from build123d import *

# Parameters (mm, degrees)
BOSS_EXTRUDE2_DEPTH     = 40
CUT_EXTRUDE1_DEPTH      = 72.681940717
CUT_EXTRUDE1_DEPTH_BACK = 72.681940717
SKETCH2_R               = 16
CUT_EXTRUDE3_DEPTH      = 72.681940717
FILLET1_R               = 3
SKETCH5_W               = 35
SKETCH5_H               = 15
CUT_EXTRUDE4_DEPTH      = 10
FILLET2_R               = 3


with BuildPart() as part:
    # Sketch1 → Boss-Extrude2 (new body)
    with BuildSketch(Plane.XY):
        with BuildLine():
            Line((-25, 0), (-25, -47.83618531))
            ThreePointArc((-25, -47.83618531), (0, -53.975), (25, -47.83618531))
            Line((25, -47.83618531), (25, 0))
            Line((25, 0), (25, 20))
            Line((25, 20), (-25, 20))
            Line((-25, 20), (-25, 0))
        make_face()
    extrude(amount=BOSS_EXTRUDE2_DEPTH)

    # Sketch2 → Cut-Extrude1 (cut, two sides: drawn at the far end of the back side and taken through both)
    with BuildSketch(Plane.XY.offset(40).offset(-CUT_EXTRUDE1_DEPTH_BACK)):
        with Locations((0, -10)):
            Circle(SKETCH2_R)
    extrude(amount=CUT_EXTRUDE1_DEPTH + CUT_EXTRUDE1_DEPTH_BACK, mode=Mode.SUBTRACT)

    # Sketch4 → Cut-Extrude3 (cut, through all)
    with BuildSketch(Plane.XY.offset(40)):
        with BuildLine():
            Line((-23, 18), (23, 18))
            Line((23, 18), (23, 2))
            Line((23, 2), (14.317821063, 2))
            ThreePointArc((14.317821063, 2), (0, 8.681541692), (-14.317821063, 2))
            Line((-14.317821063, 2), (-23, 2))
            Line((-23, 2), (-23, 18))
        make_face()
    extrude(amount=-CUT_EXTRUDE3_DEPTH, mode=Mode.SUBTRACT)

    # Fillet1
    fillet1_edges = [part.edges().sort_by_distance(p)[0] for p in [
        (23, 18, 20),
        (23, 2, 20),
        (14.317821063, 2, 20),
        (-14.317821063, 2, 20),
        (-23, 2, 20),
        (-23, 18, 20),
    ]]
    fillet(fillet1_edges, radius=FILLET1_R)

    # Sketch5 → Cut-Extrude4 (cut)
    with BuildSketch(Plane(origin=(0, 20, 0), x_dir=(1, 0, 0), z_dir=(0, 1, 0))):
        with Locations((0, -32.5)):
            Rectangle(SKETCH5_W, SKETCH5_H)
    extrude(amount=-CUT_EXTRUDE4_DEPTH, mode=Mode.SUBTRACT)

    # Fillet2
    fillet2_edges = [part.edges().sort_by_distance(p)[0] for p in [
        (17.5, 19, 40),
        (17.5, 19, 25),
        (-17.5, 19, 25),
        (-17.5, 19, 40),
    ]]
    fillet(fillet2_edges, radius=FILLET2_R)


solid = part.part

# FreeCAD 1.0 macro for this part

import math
import FreeCAD as App
import Part
import Sketcher
from FreeCAD import Vector
Q = App.Units.Quantity


def edges_at(feature, points):
    """Names of the edges that pass closest to the given points."""
    edges = feature.Shape.Edges
    near = lambda p: min(range(len(edges)), key=lambda i: edges[i].distToShape(Part.Vertex(*p))[0])
    return sorted({f"Edge{near(p) + 1}" for p in points})

doc = App.newDocument("Part")
body = doc.addObject("PartDesign::Body", "Body")

sketch1 = body.newObject("Sketcher::SketchObject", "Sketch")
sketch1.AttachmentSupport = (doc.getObject("XY_Plane"), [""])
sketch1.MapMode = "FlatFace"
sketch1.addGeometry([
    Part.ArcOfCircle(Part.Circle(Vector(0, 0, 0), Vector(0, 0, 1), 53.975), math.radians(-117.59233), math.radians(-62.40767)),
    Part.LineSegment(Vector(25, -47.836185, 0), Vector(25, 20, 0)),
    Part.LineSegment(Vector(25, 20, 0), Vector(-25, 20, 0)),
    Part.LineSegment(Vector(-25, 20, 0), Vector(-25, -47.836185, 0)),
], False)
sketch1.addConstraint([
    Sketcher.Constraint("Coincident", 0, 2, 1, 1),
    Sketcher.Constraint("Coincident", 1, 2, 2, 1),
    Sketcher.Constraint("Coincident", 2, 2, 3, 1),
    Sketcher.Constraint("Coincident", 3, 2, 0, 1),
    Sketcher.Constraint("Vertical", 1),
    Sketcher.Constraint("Horizontal", 2),
    Sketcher.Constraint("Vertical", 3),
    Sketcher.Constraint("Coincident", 0, 3, -1, 1),
    Sketcher.Constraint("Horizontal", 0, 2, 3, 2),
    Sketcher.Constraint("DistanceX", 2, 2, 2, 1, Q("50 mm")),
    Sketcher.Constraint("DistanceY", -1, 1, 1, 2, Q("20 mm")),
    Sketcher.Constraint("Radius", 0, Q("53.975 mm")),
])
pad1 = body.newObject("PartDesign::Pad", "Pad")
pad1.Profile = sketch1
pad1.Length = 40

sketch2 = body.newObject("Sketcher::SketchObject", "Sketch001")
sketch2.AttachmentSupport = (doc.getObject("XY_Plane"), [""])
sketch2.MapMode = "FlatFace"
sketch2.AttachmentOffset = App.Placement(Vector(0, 0, 40), App.Rotation())
sketch2.addGeometry(Part.Circle(Vector(0, -10, 0), Vector(0, 0, 1), 16), False)
sketch2.addConstraint([
    Sketcher.Constraint("PointOnObject", 0, 3, -2),
    Sketcher.Constraint("Diameter", 0, Q("32 mm")),
    Sketcher.Constraint("DistanceY", 0, 3, -1, 1, Q("10 mm")),
])
pocket1 = body.newObject("PartDesign::Pocket", "Pocket")
pocket1.Profile = sketch2
pocket1.Type = "ThroughAll"
pocket1.Midplane = True

sketch3 = body.newObject("Sketcher::SketchObject", "Sketch002")
sketch3.AttachmentSupport = (doc.getObject("XY_Plane"), [""])
sketch3.MapMode = "FlatFace"
sketch3.AttachmentOffset = App.Placement(Vector(0, 0, 40), App.Rotation())
sketch3.addGeometry([
    Part.LineSegment(Vector(23, 18, 0), Vector(-23, 18, 0)),
    Part.LineSegment(Vector(-23, 18, 0), Vector(-23, 2, 0)),
    Part.LineSegment(Vector(-23, 2, 0), Vector(-14.317821, 2, 0)),
    Part.ArcOfCircle(Part.Circle(Vector(0, -10, 0), Vector(0, 0, 1), 18.681542), math.radians(39.966924), math.radians(140.033076)),
    Part.LineSegment(Vector(14.317821, 2, 0), Vector(23, 2, 0)),
    Part.LineSegment(Vector(23, 2, 0), Vector(23, 18, 0)),
], False)
sketch3.addConstraint([
    Sketcher.Constraint("Coincident", 0, 2, 1, 1),
    Sketcher.Constraint("Coincident", 1, 2, 2, 1),
    Sketcher.Constraint("Coincident", 2, 2, 3, 2),
    Sketcher.Constraint("Coincident", 3, 1, 4, 1),
    Sketcher.Constraint("Coincident", 4, 2, 5, 1),
    Sketcher.Constraint("Coincident", 5, 2, 0, 1),
    Sketcher.Constraint("Horizontal", 0),
    Sketcher.Constraint("Vertical", 1),
    Sketcher.Constraint("Horizontal", 2),
    Sketcher.Constraint("Horizontal", 4),
    Sketcher.Constraint("Vertical", 5),
    Sketcher.Constraint("Symmetric", 2, 2, 3, 1, -2),
    Sketcher.Constraint("Equal", 2, 4),
    Sketcher.Constraint("DistanceX", 0, 2, 0, 1, Q("46 mm")),
    Sketcher.Constraint("DistanceY", 1, 2, 1, 1, Q("16 mm")),
    Sketcher.Constraint("DistanceY", 3, 3, -1, 1, Q("10 mm")),
    Sketcher.Constraint("DistanceY", -1, 1, 0, 2, Q("18 mm")),
    Sketcher.Constraint("Radius", 3, Q("18.681542 mm")),
])
pocket2 = body.newObject("PartDesign::Pocket", "Pocket001")
pocket2.Profile = sketch3
pocket2.Type = "ThroughAll"
doc.recompute()

fillet = body.newObject("PartDesign::Fillet", "Fillet")
fillet.Base = (pocket2, edges_at(pocket2, [
    (23, 18, 20),
    (23, 2, 20),
    (14.318, 2, 20),
    (-14.318, 2, 20),
    (-23, 2, 20),
    (-23, 18, 20),
]))
fillet.Radius = 3

sketch4 = body.newObject("Sketcher::SketchObject", "Sketch003")
sketch4.AttachmentSupport = (doc.getObject("XZ_Plane"), [""])
sketch4.MapMode = "FlatFace"
sketch4.AttachmentOffset = App.Placement(Vector(0, 0, -20), App.Rotation())
sketch4.addGeometry([
    Part.LineSegment(Vector(-17.5, 25, 0), Vector(-17.5, 40, 0)),
    Part.LineSegment(Vector(-17.5, 40, 0), Vector(17.5, 40, 0)),
    Part.LineSegment(Vector(17.5, 40, 0), Vector(17.5, 25, 0)),
    Part.LineSegment(Vector(17.5, 25, 0), Vector(-17.5, 25, 0)),
], False)
sketch4.addConstraint([
    Sketcher.Constraint("Coincident", 0, 2, 1, 1),
    Sketcher.Constraint("Coincident", 1, 2, 2, 1),
    Sketcher.Constraint("Coincident", 2, 2, 3, 1),
    Sketcher.Constraint("Coincident", 3, 2, 0, 1),
    Sketcher.Constraint("Vertical", 0),
    Sketcher.Constraint("Horizontal", 1),
    Sketcher.Constraint("Vertical", 2),
    Sketcher.Constraint("Horizontal", 3),
    Sketcher.Constraint("DistanceX", 1, 1, 1, 2, Q("35 mm")),
    Sketcher.Constraint("DistanceY", 0, 1, 0, 2, Q("15 mm")),
    Sketcher.Constraint("DistanceY", -1, 1, 0, 2, Q("40 mm")),
    Sketcher.Constraint("DistanceX", 0, 2, -1, 1, Q("17.5 mm")),
])
pocket3 = body.newObject("PartDesign::Pocket", "Pocket002")
pocket3.Profile = sketch4
pocket3.Length = 10
pocket3.Reversed = True
doc.recompute()

fillet2 = body.newObject("PartDesign::Fillet", "Fillet001")
fillet2.Base = (pocket3, edges_at(pocket3, [
    (17.5, 19, 40),
    (17.5, 19, 25),
    (-17.5, 19, 25),
    (-17.5, 19, 40),
]))
fillet2.Radius = 3

doc.recompute()
